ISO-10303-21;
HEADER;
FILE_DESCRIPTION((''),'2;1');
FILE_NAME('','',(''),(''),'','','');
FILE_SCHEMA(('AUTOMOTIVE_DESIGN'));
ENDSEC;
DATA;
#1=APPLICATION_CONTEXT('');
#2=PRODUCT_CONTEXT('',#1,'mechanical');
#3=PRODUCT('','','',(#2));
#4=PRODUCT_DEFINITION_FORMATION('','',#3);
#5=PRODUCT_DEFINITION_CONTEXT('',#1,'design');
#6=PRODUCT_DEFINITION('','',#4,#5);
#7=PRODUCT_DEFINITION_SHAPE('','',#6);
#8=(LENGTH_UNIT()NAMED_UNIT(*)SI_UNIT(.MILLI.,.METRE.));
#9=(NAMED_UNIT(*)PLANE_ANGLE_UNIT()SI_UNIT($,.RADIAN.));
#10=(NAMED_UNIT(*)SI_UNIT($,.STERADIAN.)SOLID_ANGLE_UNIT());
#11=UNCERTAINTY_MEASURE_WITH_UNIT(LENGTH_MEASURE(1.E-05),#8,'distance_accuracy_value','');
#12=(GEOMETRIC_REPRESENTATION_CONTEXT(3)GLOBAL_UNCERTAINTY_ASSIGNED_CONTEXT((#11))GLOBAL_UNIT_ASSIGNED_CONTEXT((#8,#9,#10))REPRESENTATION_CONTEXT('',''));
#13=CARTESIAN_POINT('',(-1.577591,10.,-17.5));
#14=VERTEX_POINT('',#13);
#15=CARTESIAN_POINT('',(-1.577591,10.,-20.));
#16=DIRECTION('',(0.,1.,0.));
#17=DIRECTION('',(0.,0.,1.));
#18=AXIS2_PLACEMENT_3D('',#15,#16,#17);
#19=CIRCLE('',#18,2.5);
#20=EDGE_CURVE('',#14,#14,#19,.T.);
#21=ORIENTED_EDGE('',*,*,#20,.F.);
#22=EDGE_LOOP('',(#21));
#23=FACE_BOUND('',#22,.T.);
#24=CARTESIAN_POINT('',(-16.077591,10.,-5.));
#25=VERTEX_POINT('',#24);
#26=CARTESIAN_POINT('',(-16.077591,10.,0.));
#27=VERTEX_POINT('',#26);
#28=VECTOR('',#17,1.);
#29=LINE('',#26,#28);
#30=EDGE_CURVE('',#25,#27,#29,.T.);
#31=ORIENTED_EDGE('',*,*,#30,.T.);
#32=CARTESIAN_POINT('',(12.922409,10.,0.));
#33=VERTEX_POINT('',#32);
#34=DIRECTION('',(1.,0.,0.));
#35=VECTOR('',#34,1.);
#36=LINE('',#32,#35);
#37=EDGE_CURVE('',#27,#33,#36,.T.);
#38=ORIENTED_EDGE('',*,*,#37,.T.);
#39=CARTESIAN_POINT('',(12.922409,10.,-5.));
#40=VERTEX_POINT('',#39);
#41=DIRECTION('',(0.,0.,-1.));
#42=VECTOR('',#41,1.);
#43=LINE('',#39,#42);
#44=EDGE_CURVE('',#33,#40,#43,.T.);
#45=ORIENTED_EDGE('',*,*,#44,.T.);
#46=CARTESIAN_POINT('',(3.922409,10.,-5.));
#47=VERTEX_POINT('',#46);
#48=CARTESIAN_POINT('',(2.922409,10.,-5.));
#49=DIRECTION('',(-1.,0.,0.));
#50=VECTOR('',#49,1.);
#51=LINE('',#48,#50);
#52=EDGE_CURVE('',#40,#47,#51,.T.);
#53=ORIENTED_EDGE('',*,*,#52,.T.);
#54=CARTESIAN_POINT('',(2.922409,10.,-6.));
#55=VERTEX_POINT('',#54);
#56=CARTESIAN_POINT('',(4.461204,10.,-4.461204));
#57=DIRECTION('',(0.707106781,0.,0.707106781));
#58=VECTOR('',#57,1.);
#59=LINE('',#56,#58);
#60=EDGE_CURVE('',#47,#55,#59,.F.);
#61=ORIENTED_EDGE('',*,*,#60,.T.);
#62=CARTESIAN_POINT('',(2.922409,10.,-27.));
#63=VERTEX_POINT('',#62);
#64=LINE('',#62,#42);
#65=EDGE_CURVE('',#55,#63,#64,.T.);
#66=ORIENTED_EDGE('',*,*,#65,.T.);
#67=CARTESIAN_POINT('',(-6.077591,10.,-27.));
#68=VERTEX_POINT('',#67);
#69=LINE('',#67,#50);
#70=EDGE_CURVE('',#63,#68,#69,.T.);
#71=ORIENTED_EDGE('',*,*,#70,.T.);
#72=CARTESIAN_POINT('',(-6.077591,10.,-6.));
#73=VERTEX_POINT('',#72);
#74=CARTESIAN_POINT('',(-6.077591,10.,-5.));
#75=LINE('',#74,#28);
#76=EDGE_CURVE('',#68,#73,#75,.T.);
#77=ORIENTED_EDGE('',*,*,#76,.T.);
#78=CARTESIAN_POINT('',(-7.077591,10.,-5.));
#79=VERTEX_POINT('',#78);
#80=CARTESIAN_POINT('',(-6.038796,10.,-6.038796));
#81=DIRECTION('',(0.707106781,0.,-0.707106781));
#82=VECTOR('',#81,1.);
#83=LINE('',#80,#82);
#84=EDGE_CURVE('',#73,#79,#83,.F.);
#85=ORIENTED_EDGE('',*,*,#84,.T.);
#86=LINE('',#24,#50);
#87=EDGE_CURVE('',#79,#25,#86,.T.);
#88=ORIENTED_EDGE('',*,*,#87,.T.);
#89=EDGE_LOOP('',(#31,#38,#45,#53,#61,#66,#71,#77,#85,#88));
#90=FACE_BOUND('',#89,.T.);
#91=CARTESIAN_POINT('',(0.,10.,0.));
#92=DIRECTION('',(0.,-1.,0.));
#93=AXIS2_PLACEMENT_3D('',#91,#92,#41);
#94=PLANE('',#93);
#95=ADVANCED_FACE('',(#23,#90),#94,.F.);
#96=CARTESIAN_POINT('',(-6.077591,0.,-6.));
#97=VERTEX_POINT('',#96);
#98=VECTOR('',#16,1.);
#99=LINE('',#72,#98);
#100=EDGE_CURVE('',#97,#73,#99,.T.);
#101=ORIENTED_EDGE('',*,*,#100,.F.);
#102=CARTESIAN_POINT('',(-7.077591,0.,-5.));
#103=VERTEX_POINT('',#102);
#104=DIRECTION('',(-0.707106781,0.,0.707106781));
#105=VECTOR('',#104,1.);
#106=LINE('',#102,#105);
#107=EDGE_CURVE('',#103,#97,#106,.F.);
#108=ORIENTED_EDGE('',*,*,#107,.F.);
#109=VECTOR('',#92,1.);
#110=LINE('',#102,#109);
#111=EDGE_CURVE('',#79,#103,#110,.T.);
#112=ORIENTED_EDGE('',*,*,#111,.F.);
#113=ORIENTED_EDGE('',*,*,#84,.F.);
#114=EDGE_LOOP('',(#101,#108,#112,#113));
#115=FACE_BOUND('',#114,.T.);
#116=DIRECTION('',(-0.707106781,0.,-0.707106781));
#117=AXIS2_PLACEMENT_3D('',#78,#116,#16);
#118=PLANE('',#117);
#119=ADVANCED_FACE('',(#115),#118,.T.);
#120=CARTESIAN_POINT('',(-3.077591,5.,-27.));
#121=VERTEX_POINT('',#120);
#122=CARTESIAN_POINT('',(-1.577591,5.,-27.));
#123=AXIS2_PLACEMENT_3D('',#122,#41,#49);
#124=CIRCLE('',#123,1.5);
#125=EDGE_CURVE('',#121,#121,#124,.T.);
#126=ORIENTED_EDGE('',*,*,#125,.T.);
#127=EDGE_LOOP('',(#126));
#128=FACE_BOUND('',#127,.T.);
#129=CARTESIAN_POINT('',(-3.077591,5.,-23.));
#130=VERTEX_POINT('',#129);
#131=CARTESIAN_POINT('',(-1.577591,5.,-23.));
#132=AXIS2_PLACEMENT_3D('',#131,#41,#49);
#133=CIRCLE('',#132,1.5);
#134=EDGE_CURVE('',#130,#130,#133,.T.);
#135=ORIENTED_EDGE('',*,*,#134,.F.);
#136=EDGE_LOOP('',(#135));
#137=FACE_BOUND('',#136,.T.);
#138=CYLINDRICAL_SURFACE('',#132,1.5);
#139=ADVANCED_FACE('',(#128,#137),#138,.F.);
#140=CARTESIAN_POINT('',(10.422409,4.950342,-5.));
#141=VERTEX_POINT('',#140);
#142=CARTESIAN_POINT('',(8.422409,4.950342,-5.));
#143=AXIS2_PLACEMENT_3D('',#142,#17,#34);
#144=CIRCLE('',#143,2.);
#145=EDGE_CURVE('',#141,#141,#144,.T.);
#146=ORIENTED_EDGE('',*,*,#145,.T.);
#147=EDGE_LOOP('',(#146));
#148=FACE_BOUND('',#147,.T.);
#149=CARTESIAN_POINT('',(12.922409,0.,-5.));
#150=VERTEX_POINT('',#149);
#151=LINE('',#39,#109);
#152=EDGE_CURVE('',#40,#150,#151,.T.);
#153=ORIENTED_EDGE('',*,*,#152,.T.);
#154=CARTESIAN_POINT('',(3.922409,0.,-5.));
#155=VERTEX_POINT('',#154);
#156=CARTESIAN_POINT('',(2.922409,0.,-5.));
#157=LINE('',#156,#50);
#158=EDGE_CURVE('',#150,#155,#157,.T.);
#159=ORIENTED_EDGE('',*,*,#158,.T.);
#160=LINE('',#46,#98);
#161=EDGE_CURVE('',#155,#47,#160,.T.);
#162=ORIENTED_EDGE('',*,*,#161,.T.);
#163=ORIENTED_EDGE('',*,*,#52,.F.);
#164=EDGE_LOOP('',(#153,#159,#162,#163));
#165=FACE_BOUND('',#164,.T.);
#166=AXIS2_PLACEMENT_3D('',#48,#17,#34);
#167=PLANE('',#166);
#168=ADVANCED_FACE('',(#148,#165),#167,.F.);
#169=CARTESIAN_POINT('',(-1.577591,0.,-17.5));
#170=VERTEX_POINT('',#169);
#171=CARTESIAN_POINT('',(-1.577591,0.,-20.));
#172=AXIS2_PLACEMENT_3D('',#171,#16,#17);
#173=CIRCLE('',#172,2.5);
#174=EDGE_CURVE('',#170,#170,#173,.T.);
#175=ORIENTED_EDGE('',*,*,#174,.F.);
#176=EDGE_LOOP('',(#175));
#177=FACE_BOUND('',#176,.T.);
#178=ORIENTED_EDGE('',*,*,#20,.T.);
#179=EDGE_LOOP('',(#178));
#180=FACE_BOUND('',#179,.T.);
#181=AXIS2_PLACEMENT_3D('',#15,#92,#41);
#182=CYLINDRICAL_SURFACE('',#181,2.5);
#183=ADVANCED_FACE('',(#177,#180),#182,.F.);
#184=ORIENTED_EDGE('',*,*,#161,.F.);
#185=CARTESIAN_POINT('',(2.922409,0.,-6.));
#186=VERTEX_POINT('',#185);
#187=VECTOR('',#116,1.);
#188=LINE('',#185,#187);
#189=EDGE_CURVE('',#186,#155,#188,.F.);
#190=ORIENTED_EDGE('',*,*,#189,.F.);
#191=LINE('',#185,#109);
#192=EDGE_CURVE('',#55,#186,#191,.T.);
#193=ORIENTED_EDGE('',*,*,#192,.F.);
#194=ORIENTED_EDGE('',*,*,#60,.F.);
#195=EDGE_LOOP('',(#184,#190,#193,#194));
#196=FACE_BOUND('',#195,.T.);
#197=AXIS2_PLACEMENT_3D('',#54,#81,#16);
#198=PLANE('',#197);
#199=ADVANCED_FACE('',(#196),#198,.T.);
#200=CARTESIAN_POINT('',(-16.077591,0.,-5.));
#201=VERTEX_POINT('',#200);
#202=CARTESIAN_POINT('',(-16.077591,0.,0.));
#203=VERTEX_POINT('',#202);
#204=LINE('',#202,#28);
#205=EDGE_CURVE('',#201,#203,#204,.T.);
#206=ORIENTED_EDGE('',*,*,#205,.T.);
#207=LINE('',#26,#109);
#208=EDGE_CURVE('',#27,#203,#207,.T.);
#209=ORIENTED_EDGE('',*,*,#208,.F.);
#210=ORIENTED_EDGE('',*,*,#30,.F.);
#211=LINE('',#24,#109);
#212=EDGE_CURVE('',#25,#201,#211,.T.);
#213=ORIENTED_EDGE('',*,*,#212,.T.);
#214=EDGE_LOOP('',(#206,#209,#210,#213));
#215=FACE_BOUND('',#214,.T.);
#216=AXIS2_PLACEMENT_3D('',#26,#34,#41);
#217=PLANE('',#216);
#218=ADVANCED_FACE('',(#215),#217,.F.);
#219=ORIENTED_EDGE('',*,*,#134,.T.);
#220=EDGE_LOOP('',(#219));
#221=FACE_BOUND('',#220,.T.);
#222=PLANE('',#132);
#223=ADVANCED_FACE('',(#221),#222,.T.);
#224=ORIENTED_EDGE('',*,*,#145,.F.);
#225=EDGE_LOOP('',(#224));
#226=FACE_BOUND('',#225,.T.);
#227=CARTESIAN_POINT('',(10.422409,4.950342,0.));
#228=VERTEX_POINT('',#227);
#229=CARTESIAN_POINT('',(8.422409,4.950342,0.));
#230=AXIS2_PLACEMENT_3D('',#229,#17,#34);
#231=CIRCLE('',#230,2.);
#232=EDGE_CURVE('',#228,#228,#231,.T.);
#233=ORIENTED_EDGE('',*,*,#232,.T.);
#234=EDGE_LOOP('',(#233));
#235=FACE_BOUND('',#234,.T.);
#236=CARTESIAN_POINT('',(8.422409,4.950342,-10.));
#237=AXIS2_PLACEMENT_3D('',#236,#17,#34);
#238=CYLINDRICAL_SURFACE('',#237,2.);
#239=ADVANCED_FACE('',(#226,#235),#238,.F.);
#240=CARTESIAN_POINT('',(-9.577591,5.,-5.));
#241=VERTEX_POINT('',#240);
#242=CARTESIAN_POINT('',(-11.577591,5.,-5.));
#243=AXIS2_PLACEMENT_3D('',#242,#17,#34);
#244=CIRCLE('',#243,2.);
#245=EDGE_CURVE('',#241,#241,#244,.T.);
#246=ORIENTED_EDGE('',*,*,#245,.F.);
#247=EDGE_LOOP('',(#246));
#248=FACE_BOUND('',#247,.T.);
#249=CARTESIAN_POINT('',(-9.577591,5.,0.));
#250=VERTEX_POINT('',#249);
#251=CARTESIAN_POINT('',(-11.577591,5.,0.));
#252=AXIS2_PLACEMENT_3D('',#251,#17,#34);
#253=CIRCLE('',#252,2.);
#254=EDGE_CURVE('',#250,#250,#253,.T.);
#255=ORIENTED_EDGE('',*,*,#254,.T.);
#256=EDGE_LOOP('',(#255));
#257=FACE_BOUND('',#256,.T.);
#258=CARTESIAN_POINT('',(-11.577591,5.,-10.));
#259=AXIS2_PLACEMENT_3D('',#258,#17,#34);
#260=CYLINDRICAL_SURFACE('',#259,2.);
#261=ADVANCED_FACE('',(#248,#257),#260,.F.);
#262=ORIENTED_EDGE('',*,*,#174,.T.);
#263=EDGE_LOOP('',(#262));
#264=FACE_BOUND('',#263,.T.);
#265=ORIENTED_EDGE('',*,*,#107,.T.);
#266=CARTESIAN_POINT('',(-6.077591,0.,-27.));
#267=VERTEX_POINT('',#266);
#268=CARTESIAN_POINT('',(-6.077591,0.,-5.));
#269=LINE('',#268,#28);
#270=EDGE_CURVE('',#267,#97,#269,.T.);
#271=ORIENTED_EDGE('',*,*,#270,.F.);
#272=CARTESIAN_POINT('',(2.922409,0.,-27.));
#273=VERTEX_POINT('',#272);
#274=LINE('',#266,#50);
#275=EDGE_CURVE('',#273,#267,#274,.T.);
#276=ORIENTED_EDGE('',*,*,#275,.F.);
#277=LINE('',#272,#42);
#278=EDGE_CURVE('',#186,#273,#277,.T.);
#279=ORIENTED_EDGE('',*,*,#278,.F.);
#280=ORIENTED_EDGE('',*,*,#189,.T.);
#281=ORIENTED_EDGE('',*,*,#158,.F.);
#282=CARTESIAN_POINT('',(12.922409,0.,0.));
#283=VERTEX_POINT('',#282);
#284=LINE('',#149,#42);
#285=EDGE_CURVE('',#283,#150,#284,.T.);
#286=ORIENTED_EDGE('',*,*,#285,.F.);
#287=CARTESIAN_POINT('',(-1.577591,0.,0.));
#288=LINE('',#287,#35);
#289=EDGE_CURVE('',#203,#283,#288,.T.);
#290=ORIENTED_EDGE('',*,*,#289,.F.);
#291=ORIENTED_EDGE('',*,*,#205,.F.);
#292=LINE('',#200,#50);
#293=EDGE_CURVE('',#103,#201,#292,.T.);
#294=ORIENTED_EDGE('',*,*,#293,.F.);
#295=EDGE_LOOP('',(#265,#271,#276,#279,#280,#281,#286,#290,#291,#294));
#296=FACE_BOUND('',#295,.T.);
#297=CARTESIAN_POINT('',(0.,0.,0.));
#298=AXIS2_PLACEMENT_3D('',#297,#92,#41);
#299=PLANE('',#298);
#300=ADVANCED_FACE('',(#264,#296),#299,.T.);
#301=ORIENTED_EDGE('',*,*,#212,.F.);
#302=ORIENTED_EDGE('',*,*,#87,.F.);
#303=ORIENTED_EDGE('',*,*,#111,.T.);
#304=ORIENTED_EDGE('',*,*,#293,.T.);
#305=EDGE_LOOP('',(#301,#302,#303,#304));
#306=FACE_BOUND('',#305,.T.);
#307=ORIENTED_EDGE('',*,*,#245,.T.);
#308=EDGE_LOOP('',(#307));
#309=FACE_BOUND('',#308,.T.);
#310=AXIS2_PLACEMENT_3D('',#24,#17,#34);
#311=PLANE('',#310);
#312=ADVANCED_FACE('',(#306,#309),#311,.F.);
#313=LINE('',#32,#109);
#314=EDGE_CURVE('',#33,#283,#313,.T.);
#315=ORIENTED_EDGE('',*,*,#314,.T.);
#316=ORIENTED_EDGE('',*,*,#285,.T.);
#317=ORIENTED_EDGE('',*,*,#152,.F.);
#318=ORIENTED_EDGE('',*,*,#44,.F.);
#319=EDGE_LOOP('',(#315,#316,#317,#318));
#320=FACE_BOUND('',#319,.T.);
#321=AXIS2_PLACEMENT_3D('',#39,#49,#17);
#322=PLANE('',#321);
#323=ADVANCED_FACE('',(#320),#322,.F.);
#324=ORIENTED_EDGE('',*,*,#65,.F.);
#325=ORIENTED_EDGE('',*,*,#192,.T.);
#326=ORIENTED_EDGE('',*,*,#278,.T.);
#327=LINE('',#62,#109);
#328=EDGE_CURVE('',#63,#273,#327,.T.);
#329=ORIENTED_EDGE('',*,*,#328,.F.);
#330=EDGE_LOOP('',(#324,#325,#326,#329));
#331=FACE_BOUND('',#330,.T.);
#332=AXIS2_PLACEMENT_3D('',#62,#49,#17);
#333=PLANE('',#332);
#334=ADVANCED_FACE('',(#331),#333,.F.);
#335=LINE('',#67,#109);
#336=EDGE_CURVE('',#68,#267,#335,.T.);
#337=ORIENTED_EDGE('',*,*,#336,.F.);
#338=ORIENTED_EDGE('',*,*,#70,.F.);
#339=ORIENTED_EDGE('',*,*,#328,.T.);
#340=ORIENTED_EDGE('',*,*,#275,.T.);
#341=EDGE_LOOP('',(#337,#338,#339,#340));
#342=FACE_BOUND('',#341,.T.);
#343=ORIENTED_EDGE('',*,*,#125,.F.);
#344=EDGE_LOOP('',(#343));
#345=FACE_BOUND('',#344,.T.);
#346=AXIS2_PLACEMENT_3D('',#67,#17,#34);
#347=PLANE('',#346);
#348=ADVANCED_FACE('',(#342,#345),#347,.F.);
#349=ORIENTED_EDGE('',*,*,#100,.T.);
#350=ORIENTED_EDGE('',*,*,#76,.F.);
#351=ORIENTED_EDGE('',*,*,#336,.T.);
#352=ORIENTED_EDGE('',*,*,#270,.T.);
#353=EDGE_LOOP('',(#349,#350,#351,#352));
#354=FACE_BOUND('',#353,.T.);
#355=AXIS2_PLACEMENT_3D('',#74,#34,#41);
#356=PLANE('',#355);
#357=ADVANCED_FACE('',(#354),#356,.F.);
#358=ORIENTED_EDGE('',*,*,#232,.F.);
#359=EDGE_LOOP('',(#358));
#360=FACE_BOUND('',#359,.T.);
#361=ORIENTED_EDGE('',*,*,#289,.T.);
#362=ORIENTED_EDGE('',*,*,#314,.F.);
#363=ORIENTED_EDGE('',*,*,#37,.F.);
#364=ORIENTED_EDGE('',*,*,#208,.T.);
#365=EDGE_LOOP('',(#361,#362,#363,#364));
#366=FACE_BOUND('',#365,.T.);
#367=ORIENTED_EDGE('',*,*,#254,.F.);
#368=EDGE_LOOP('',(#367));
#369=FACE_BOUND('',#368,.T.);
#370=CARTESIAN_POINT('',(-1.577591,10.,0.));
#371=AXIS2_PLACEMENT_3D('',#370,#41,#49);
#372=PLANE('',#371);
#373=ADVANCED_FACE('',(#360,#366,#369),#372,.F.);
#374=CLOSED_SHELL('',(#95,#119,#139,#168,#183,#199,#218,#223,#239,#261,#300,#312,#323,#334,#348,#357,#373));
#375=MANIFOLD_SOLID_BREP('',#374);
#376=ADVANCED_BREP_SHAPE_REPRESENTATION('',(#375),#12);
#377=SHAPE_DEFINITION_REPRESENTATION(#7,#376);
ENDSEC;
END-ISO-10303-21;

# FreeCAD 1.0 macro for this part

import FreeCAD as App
import Part
import Sketcher
from FreeCAD import Vector
Q = App.Units.Quantity


def edges_at(feature, points):
    """Names of the edges that pass closest to the given points."""
    edges = feature.Shape.Edges
    near = lambda p: min(range(len(edges)), key=lambda i: edges[i].distToShape(Part.Vertex(*p))[0])
    return sorted({f"Edge{near(p) + 1}" for p in points})

doc = App.newDocument("Part")
params = doc.addObject("Spreadsheet::Sheet", "Params")
for row, (alias, value) in enumerate([
    ("sketch1_diameter", "5 mm"),
    ("sketch1_width", "29 mm"),
    ("sketch1_width2", "10 mm"),
    ("sketch1_height", "5 mm"),
    ("sketch1_height2", "22 mm"),
    ("pad1_length", "10 mm"),
    ("sketch2_diameter", "4 mm"),
    ("pocket1_length", "10 mm"),
    ("sketch3_diameter", "3 mm"),
    ("pocket2_length", "4 mm"),
    ("chamfer_size", "1 mm"),
], start=1):
    params.set(f"A{row}", alias)
    params.set(f"B{row}", "=" + value)
    params.setAlias(f"B{row}", alias)

body = doc.addObject("PartDesign::Body", "Body")

# Sketch on XZ plane
sketch1 = body.newObject("Sketcher::SketchObject", "Sketch")
sketch1.AttachmentSupport = (doc.getObject("XZ_Plane"), [""])
sketch1.MapMode = "FlatFace"
sketch1.addGeometry([
    Part.LineSegment(Vector(-16.1, 0, 0), Vector(12.9, 0, 0)),  # 0
    Part.LineSegment(Vector(12.9, 0, 0), Vector(12.9, -5, 0)),  # 1
    Part.LineSegment(Vector(12.9, -5, 0), Vector(2.9, -5, 0)),  # 2
    Part.LineSegment(Vector(2.9, -5, 0), Vector(2.9, -27, 0)),  # 3
    Part.LineSegment(Vector(2.9, -27, 0), Vector(-6.1, -27, 0)),  # 4
    Part.LineSegment(Vector(-6.1, -27, 0), Vector(-6.1, -5, 0)),  # 5
    Part.LineSegment(Vector(-6.1, -5, 0), Vector(-16.1, -5, 0)),  # 6
    Part.LineSegment(Vector(-16.1, -5, 0), Vector(-16.1, 0, 0)),  # 7
    Part.Circle(Vector(-1.6, -20, 0), Vector(0, 0, 1), 2.5),  # 8
], False)
sketch1.addConstraint([
    Sketcher.Constraint("Coincident", 0, 2, 1, 1),
    Sketcher.Constraint("Coincident", 1, 2, 2, 1),
    Sketcher.Constraint("Coincident", 2, 2, 3, 1),
    Sketcher.Constraint("Coincident", 3, 2, 4, 1),
    Sketcher.Constraint("Coincident", 4, 2, 5, 1),
    Sketcher.Constraint("Coincident", 5, 2, 6, 1),
    Sketcher.Constraint("Coincident", 6, 2, 7, 1),
    Sketcher.Constraint("Coincident", 7, 2, 0, 1),
    Sketcher.Constraint("Horizontal", 0),
    Sketcher.Constraint("Vertical", 1),
    Sketcher.Constraint("Horizontal", 2),
    Sketcher.Constraint("Vertical", 3),
    Sketcher.Constraint("Horizontal", 4),
    Sketcher.Constraint("Vertical", 5),
    Sketcher.Constraint("Horizontal", 6),
    Sketcher.Constraint("Vertical", 7),
    Sketcher.Constraint("PointOnObject", 0, 2, -1),
    Sketcher.Constraint("Horizontal", 2, 2, 5, 2),
    Sketcher.Constraint("Equal", 2, 6),
    Sketcher.Constraint("Diameter", 8, Q("5 mm")),
    Sketcher.Constraint("DistanceX", 0, 1, 0, 2, Q("29 mm")),
    Sketcher.Constraint("DistanceX", 2, 2, 2, 1, Q("10 mm")),
    Sketcher.Constraint("DistanceY", 1, 2, 1, 1, Q("5 mm")),
    Sketcher.Constraint("DistanceY", 3, 2, 3, 1, Q("22 mm")),
    Sketcher.Constraint("DistanceY", 8, 3, -1, 1, Q("20 mm")),
    Sketcher.Constraint("DistanceX", 8, 3, 0, 2, Q("14.5 mm")),
    Sketcher.Constraint("DistanceX", 8, 3, -1, 1, Q("1.577591 mm")),
])
sketch1.setExpression("Constraints[19]", "Params.sketch1_diameter")
sketch1.setExpression("Constraints[20]", "Params.sketch1_width")
sketch1.setExpression("Constraints[21]", "Params.sketch1_width2")
sketch1.setExpression("Constraints[22]", "Params.sketch1_height")
sketch1.setExpression("Constraints[23]", "Params.sketch1_height2")
pad1 = body.newObject("PartDesign::Pad", "Pad")
pad1.Profile = sketch1
pad1.setExpression("Length", "Params.pad1_length")
pad1.Reversed = True

# Sketch on XY plane
sketch2 = body.newObject("Sketcher::SketchObject", "Sketch001")
sketch2.AttachmentSupport = (doc.getObject("XY_Plane"), [""])
sketch2.MapMode = "FlatFace"
sketch2.addGeometry([
    Part.Circle(Vector(-11.6, 5, 0), Vector(0, 0, 1), 2),
    Part.Circle(Vector(8.4, 5, 0), Vector(0, 0, 1), 2),
], False)
sketch2.addConstraint([
    Sketcher.Constraint("Equal", 0, 1),
    Sketcher.Constraint("Diameter", 0, Q("4 mm")),
    Sketcher.Constraint("DistanceY", -1, 1, 0, 3, Q("5 mm")),
    Sketcher.Constraint("DistanceX", 0, 3, 1, 3, Q("20 mm")),
    Sketcher.Constraint("DistanceX", 0, 3, -1, 1, Q("11.577591 mm")),
    Sketcher.Constraint("DistanceY", -1, 1, 1, 3, Q("4.950342 mm")),
])
sketch2.setExpression("Constraints[1]", "Params.sketch2_diameter")
pocket1 = body.newObject("PartDesign::Pocket", "Pocket")
pocket1.Profile = sketch2
pocket1.setExpression("Length", "Params.pocket1_length")

# Sketch on XY plane
sketch3 = body.newObject("Sketcher::SketchObject", "Sketch002")
sketch3.AttachmentSupport = (doc.getObject("XY_Plane"), [""])
sketch3.MapMode = "FlatFace"
sketch3.AttachmentOffset = App.Placement(Vector(0, 0, -27), App.Rotation())
sketch3.addGeometry(Part.Circle(Vector(-1.6, 5, 0), Vector(0, 0, 1), 1.5), False)
sketch3.addConstraint([
    Sketcher.Constraint("Diameter", 0, Q("3 mm")),
    Sketcher.Constraint("DistanceY", -1, 1, 0, 3, Q("5 mm")),
    Sketcher.Constraint("DistanceX", 0, 3, -1, 1, Q("1.577591 mm")),
])
sketch3.setExpression("Constraints[0]", "Params.sketch3_diameter")
pocket2 = body.newObject("PartDesign::Pocket", "Pocket001")
pocket2.Profile = sketch3
pocket2.setExpression("Length", "Params.pocket2_length")
pocket2.Reversed = True
doc.recompute()

chamfer = body.newObject("PartDesign::Chamfer", "Chamfer")
chamfer.Base = (pocket2, edges_at(pocket2, [(-6.078, 5, -5), (2.922, 5, -5)]))
chamfer.setExpression("Size", "Params.chamfer_size")

doc.recompute()
